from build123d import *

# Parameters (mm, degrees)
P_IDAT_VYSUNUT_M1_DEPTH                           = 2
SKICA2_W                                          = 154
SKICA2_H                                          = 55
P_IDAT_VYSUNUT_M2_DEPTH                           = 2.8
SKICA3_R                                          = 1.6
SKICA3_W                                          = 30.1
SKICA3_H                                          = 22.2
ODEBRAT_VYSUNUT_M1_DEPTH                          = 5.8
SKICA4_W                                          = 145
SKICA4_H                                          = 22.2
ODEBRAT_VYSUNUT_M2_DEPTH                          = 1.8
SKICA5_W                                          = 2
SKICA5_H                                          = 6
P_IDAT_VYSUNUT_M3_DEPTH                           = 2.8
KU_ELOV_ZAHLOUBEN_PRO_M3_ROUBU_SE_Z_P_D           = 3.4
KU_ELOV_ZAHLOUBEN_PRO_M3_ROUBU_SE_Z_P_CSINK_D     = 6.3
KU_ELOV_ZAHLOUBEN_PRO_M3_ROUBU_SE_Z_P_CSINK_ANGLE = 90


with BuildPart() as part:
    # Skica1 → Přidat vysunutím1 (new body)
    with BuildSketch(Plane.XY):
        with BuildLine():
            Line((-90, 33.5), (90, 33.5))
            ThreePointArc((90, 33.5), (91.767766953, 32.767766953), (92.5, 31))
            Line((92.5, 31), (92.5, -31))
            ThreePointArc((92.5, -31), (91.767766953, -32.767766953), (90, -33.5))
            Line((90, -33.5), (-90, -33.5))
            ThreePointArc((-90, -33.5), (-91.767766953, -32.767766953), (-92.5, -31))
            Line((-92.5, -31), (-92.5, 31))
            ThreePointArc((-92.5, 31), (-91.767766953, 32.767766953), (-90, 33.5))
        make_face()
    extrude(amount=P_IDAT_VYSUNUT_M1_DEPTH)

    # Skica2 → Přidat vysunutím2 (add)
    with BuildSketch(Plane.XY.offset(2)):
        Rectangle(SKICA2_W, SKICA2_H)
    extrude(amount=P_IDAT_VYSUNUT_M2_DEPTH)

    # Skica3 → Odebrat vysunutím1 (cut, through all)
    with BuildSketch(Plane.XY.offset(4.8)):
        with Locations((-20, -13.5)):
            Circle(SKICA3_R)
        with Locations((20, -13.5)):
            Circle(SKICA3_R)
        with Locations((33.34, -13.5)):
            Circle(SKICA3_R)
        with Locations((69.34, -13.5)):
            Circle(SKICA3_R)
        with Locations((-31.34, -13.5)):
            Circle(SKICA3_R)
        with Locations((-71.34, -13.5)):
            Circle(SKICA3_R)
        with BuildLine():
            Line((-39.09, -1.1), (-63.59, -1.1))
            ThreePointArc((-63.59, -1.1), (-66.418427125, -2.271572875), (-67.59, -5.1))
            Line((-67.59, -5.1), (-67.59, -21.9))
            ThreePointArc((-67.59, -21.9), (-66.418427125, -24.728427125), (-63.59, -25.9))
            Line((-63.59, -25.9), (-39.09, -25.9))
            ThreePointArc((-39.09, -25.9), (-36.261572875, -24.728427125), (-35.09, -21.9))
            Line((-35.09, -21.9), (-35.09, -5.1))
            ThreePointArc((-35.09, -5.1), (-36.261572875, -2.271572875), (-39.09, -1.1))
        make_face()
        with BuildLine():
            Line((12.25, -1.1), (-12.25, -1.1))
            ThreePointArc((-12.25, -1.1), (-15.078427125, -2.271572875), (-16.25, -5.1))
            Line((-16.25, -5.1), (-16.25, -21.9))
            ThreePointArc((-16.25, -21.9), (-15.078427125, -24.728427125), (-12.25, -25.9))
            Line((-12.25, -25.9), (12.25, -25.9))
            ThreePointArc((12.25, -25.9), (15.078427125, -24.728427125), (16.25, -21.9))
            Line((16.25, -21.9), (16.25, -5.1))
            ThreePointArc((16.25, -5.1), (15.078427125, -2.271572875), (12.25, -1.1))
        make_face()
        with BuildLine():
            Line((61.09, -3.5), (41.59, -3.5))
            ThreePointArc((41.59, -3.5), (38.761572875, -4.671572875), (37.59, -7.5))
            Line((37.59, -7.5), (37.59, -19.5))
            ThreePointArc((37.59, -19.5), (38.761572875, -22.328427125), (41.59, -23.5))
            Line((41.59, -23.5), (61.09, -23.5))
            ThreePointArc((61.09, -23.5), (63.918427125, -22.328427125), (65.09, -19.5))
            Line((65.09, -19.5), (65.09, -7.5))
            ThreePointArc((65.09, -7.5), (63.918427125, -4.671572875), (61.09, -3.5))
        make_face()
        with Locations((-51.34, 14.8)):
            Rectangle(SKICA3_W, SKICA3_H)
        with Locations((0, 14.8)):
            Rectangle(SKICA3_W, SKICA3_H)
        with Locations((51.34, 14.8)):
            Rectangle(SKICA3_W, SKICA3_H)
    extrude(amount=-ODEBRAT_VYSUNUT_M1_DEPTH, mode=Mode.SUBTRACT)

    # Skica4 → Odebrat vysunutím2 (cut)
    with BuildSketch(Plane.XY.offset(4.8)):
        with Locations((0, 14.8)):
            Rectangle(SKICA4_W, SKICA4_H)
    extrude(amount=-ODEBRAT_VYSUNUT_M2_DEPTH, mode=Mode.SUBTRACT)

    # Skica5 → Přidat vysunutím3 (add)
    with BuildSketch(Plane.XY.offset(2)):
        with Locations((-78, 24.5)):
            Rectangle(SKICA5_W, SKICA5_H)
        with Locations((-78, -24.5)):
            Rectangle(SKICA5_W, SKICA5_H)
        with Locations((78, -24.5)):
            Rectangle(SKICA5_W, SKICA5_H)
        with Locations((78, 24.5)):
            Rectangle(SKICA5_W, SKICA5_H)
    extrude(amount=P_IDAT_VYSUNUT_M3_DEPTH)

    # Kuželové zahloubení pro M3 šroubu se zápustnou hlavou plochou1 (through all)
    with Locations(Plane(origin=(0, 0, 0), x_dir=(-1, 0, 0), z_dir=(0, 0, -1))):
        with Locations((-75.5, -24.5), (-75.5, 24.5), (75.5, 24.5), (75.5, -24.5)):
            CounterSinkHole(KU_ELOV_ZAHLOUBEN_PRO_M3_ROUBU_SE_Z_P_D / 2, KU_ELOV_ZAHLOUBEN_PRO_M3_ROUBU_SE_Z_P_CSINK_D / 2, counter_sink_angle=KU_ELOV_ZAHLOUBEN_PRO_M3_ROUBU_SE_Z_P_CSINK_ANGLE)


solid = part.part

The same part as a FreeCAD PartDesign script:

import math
import FreeCAD as App
import Part
import Sketcher
from FreeCAD import Vector


def add_polygon(sketch, points):
    """Adds a closed chain of lines whose ends are joined by coincident constraints."""
    first, n = sketch.GeometryCount, len(points)
    for a, b in zip(points, points[1:] + points[:1]):
        sketch.addGeometry(Part.LineSegment(App.Vector(*a, 0), App.Vector(*b, 0)), False)
    for i in range(n):
        sketch.addConstraint(Sketcher.Constraint("Coincident", first + i, 2, first + (i + 1) % n, 1))

doc = App.newDocument("Part")
params = doc.addObject("Spreadsheet::Sheet", "Params")
for row, (alias, value) in enumerate([
    ("sketch1_radius", "2.5 mm"),
    ("sketch1_width", "180 mm"),
    ("sketch1_height", "62 mm"),
    ("pad1_length", "2 mm"),
    ("sketch2_width", "154 mm"),
    ("sketch2_height", "55 mm"),
    ("pad2_length", "2.8 mm"),
    ("sketch3_radius", "4 mm"),
    ("sketch3_diameter", "3.2 mm"),
    ("sketch3_height", "12 mm"),
    ("sketch3_width", "24.5 mm"),
    ("sketch3_width2", "19.5 mm"),
    ("sketch4_width", "145 mm"),
    ("sketch4_height", "22.2 mm"),
    ("pocket2_length", "1.8 mm"),
    ("sketch5_width", "2 mm"),
    ("sketch5_height", "6 mm"),
    ("pad3_length", "2.8 mm"),
    ("sketch6_diameter", "3.4 mm"),
    ("hole_diameter", "3.4 mm"),
    ("hole_csink_diameter", "6.3 mm"),
], start=1):
    params.set(f"A{row}", alias)
    params.set(f"B{row}", "=" + value)
    params.setAlias(f"B{row}", alias)

body = doc.addObject("PartDesign::Body", "Body")

# Sketch on XY plane
sketch1 = body.newObject("Sketcher::SketchObject", "Sketch")
sketch1.AttachmentSupport = (doc.getObject("XY_Plane"), [""])
sketch1.MapMode = "FlatFace"
sketch1.addGeometry(Part.LineSegment(Vector(90, 33.5, 0), Vector(-90, 33.5, 0)), False)
sketch1.addGeometry(Part.ArcOfCircle(Part.Circle(Vector(-90, 31, 0), Vector(0, 0, 1), 2.5), math.radians(90), math.radians(180)), False)
sketch1.addGeometry(Part.LineSegment(Vector(-92.5, 31, 0), Vector(-92.5, -31, 0)), False)
sketch1.addGeometry(Part.ArcOfCircle(Part.Circle(Vector(-90, -31, 0), Vector(0, 0, 1), 2.5), math.radians(180), math.radians(270)), False)
sketch1.addGeometry(Part.LineSegment(Vector(-90, -33.5, 0), Vector(90, -33.5, 0)), False)
sketch1.addGeometry(Part.ArcOfCircle(Part.Circle(Vector(90, -31, 0), Vector(0, 0, 1), 2.5), math.radians(-90), math.radians(0)), False)
sketch1.addGeometry(Part.LineSegment(Vector(92.5, -31, 0), Vector(92.5, 31, 0)), False)
sketch1.addGeometry(Part.ArcOfCircle(Part.Circle(Vector(90, 31, 0), Vector(0, 0, 1), 2.5), math.radians(0), math.radians(90)), False)
sketch1.addConstraint(Sketcher.Constraint("Tangent", 0, 2, 1, 1))
sketch1.addConstraint(Sketcher.Constraint("Tangent", 1, 2, 2, 1))
sketch1.addConstraint(Sketcher.Constraint("Tangent", 2, 2, 3, 1))
sketch1.addConstraint(Sketcher.Constraint("Tangent", 3, 2, 4, 1))
sketch1.addConstraint(Sketcher.Constraint("Tangent", 4, 2, 5, 1))
sketch1.addConstraint(Sketcher.Constraint("Tangent", 5, 2, 6, 1))
sketch1.addConstraint(Sketcher.Constraint("Tangent", 6, 2, 7, 1))
sketch1.addConstraint(Sketcher.Constraint("Tangent", 7, 2, 0, 1))
sketch1.addConstraint(Sketcher.Constraint("Horizontal", 0))
sketch1.addConstraint(Sketcher.Constraint("Vertical", 2))
sketch1.addConstraint(Sketcher.Constraint("Horizontal", 4))
sketch1.addConstraint(Sketcher.Constraint("Vertical", 6))
sketch1.addConstraint(Sketcher.Constraint("Equal", 1, 3))
sketch1.addConstraint(Sketcher.Constraint("Equal", 3, 5))
sketch1.addConstraint(Sketcher.Constraint("Equal", 5, 7))
sketch1.addConstraint(Sketcher.Constraint("Symmetric", 1, 3, 5, 3, -1, 1))
sketch1.addConstraint(Sketcher.Constraint("Radius", 1, 2.5))
sketch1.addConstraint(Sketcher.Constraint("DistanceX", 0, 2, 0, 1, 180.0))
sketch1.addConstraint(Sketcher.Constraint("DistanceY", 2, 2, 2, 1, 62.0))
sketch1.setExpression("Constraints[16]", "Params.sketch1_radius")
sketch1.setExpression("Constraints[17]", "Params.sketch1_width")
sketch1.setExpression("Constraints[18]", "Params.sketch1_height")
pad1 = body.newObject("PartDesign::Pad", "Pad")
pad1.Profile = sketch1
pad1.setExpression("Length", "Params.pad1_length")

# Sketch on XY plane
sketch2 = body.newObject("Sketcher::SketchObject", "Sketch001")
sketch2.AttachmentSupport = (doc.getObject("XY_Plane"), [""])
sketch2.MapMode = "FlatFace"
sketch2.AttachmentOffset = App.Placement(Vector(0, 0, 2), App.Rotation())
add_polygon(sketch2, [(-77, 28), (-77, -28), (77, -28), (77, 28)])  # lines 0-3
sketch2.addConstraint(Sketcher.Constraint("Vertical", 0))
sketch2.addConstraint(Sketcher.Constraint("Horizontal", 1))
sketch2.addConstraint(Sketcher.Constraint("Vertical", 2))
sketch2.addConstraint(Sketcher.Constraint("Horizontal", 3))
sketch2.addConstraint(Sketcher.Constraint("Symmetric", 0, 2, 2, 2, -1, 1))
sketch2.addConstraint(Sketcher.Constraint("DistanceX", 1, 1, 1, 2, 154.0))
sketch2.addConstraint(Sketcher.Constraint("DistanceY", 0, 2, 0, 1, 55.0))
sketch2.setExpression("Constraints[9]", "Params.sketch2_width")
sketch2.setExpression("Constraints[10]", "Params.sketch2_height")
pad2 = body.newObject("PartDesign::Pad", "Pad001")
pad2.Profile = sketch2
pad2.setExpression("Length", "Params.pad2_length")

# Sketch on XY plane
sketch3 = body.newObject("Sketcher::SketchObject", "Sketch002")
sketch3.AttachmentSupport = (doc.getObject("XY_Plane"), [""])
sketch3.MapMode = "FlatFace"
sketch3.AttachmentOffset = App.Placement(Vector(0, 0, 4.8), App.Rotation())
sketch3.addGeometry(Part.Circle(Vector(-20, -13.5, 0), Vector(0, 0, 1), 1.6), False)  # 0
sketch3.addGeometry(Part.Circle(Vector(20, -13.5, 0), Vector(0, 0, 1), 1.6), False)  # 1
sketch3.addGeometry(Part.Circle(Vector(33.3, -13.5, 0), Vector(0, 0, 1), 1.6), False)  # 2
sketch3.addGeometry(Part.Circle(Vector(69.3, -13.5, 0), Vector(0, 0, 1), 1.6), False)  # 3
sketch3.addGeometry(Part.Circle(Vector(-31.3, -13.5, 0), Vector(0, 0, 1), 1.6), False)  # 4
sketch3.addGeometry(Part.Circle(Vector(-71.3, -13.5, 0), Vector(0, 0, 1), 1.6), False)  # 5
sketch3.addGeometry(Part.LineSegment(Vector(-39.1, -1.1, 0), Vector(-63.6, -1.1, 0)), False)  # 6
sketch3.addGeometry(Part.ArcOfCircle(Part.Circle(Vector(-63.6, -5.1, 0), Vector(0, 0, 1), 4), math.radians(90), math.radians(180)), False)  # 7
sketch3.addGeometry(Part.LineSegment(Vector(-67.6, -5.1, 0), Vector(-67.6, -21.9, 0)), False)  # 8
sketch3.addGeometry(Part.ArcOfCircle(Part.Circle(Vector(-63.6, -21.9, 0), Vector(0, 0, 1), 4), math.radians(180), math.radians(270)), False)  # 9
sketch3.addGeometry(Part.LineSegment(Vector(-63.6, -25.9, 0), Vector(-39.1, -25.9, 0)), False)  # 10
sketch3.addGeometry(Part.ArcOfCircle(Part.Circle(Vector(-39.1, -21.9, 0), Vector(0, 0, 1), 4), math.radians(-90), math.radians(0)), False)  # 11
sketch3.addGeometry(Part.LineSegment(Vector(-35.1, -21.9, 0), Vector(-35.1, -5.1, 0)), False)  # 12
sketch3.addGeometry(Part.ArcOfCircle(Part.Circle(Vector(-39.1, -5.1, 0), Vector(0, 0, 1), 4), math.radians(0), math.radians(90)), False)  # 13
sketch3.addGeometry(Part.LineSegment(Vector(12.2, -1.1, 0), Vector(-12.2, -1.1, 0)), False)  # 14
sketch3.addGeometry(Part.ArcOfCircle(Part.Circle(Vector(-12.3, -5.1, 0), Vector(0, 0, 1), 4), math.radians(90), math.radians(180)), False)  # 15
sketch3.addGeometry(Part.LineSegment(Vector(-16.2, -5.1, 0), Vector(-16.2, -21.9, 0)), False)  # 16
sketch3.addGeometry(Part.ArcOfCircle(Part.Circle(Vector(-12.3, -21.9, 0), Vector(0, 0, 1), 4), math.radians(180), math.radians(270)), False)  # 17
sketch3.addGeometry(Part.LineSegment(Vector(-12.2, -25.9, 0), Vector(12.2, -25.9, 0)), False)  # 18
sketch3.addGeometry(Part.ArcOfCircle(Part.Circle(Vector(12.3, -21.9, 0), Vector(0, 0, 1), 4), math.radians(-90), math.radians(0)), False)  # 19
sketch3.addGeometry(Part.LineSegment(Vector(16.2, -21.9, 0), Vector(16.2, -5.1, 0)), False)  # 20
sketch3.addGeometry(Part.ArcOfCircle(Part.Circle(Vector(12.3, -5.1, 0), Vector(0, 0, 1), 4), math.radians(0), math.radians(90)), False)  # 21
sketch3.addGeometry(Part.LineSegment(Vector(61.1, -3.5, 0), Vector(41.6, -3.5, 0)), False)  # 22
sketch3.addGeometry(Part.ArcOfCircle(Part.Circle(Vector(41.6, -7.5, 0), Vector(0, 0, 1), 4), math.radians(90), math.radians(180)), False)  # 23
sketch3.addGeometry(Part.LineSegment(Vector(37.6, -7.5, 0), Vector(37.6, -19.5, 0)), False)  # 24
sketch3.addGeometry(Part.ArcOfCircle(Part.Circle(Vector(41.6, -19.5, 0), Vector(0, 0, 1), 4), math.radians(180), math.radians(270)), False)  # 25
sketch3.addGeometry(Part.LineSegment(Vector(41.6, -23.5, 0), Vector(61.1, -23.5, 0)), False)  # 26
sketch3.addGeometry(Part.ArcOfCircle(Part.Circle(Vector(61.1, -19.5, 0), Vector(0, 0, 1), 4), math.radians(-90), math.radians(0)), False)  # 27
sketch3.addGeometry(Part.LineSegment(Vector(65.1, -19.5, 0), Vector(65.1, -7.5, 0)), False)  # 28
sketch3.addGeometry(Part.ArcOfCircle(Part.Circle(Vector(61.1, -7.5, 0), Vector(0, 0, 1), 4), math.radians(0), math.radians(90)), False)  # 29
add_polygon(sketch3, [(-66.4, 25.9), (-66.4, 3.7), (-36.3, 3.7), (-36.3, 25.9)])  # lines 30-33
add_polygon(sketch3, [(-15.1, 25.9), (-15.1, 3.7), (15.1, 3.7), (15.1, 25.9)])  # lines 34-37
add_polygon(sketch3, [(36.3, 25.9), (36.3, 3.7), (66.4, 3.7), (66.4, 25.9)])  # lines 38-41
sketch3.addConstraint(Sketcher.Constraint("Tangent", 6, 2, 7, 1))
sketch3.addConstraint(Sketcher.Constraint("Tangent", 7, 2, 8, 1))
sketch3.addConstraint(Sketcher.Constraint("Tangent", 8, 2, 9, 1))
sketch3.addConstraint(Sketcher.Constraint("Tangent", 9, 2, 10, 1))
sketch3.addConstraint(Sketcher.Constraint("Tangent", 10, 2, 11, 1))
sketch3.addConstraint(Sketcher.Constraint("Tangent", 11, 2, 12, 1))
sketch3.addConstraint(Sketcher.Constraint("Tangent", 12, 2, 13, 1))
sketch3.addConstraint(Sketcher.Constraint("Tangent", 13, 2, 6, 1))
sketch3.addConstraint(Sketcher.Constraint("Tangent", 14, 2, 15, 1))
sketch3.addConstraint(Sketcher.Constraint("Tangent", 15, 2, 16, 1))
sketch3.addConstraint(Sketcher.Constraint("Tangent", 16, 2, 17, 1))
sketch3.addConstraint(Sketcher.Constraint("Tangent", 17, 2, 18, 1))
sketch3.addConstraint(Sketcher.Constraint("Tangent", 18, 2, 19, 1))
sketch3.addConstraint(Sketcher.Constraint("Tangent", 19, 2, 20, 1))
sketch3.addConstraint(Sketcher.Constraint("Tangent", 20, 2, 21, 1))
sketch3.addConstraint(Sketcher.Constraint("Tangent", 21, 2, 14, 1))
sketch3.addConstraint(Sketcher.Constraint("Tangent", 22, 2, 23, 1))
sketch3.addConstraint(Sketcher.Constraint("Tangent", 23, 2, 24, 1))
sketch3.addConstraint(Sketcher.Constraint("Tangent", 24, 2, 25, 1))
sketch3.addConstraint(Sketcher.Constraint("Tangent", 25, 2, 26, 1))
sketch3.addConstraint(Sketcher.Constraint("Tangent", 26, 2, 27, 1))
sketch3.addConstraint(Sketcher.Constraint("Tangent", 27, 2, 28, 1))
sketch3.addConstraint(Sketcher.Constraint("Tangent", 28, 2, 29, 1))
sketch3.addConstraint(Sketcher.Constraint("Tangent", 29, 2, 22, 1))
sketch3.addConstraint(Sketcher.Constraint("Horizontal", 6))
sketch3.addConstraint(Sketcher.Constraint("Vertical", 8))
sketch3.addConstraint(Sketcher.Constraint("Horizontal", 10))
sketch3.addConstraint(Sketcher.Constraint("Vertical", 12))
sketch3.addConstraint(Sketcher.Constraint("Horizontal", 14))
sketch3.addConstraint(Sketcher.Constraint("Vertical", 16))
sketch3.addConstraint(Sketcher.Constraint("Horizontal", 18))
sketch3.addConstraint(Sketcher.Constraint("Vertical", 20))
sketch3.addConstraint(Sketcher.Constraint("Horizontal", 22))
sketch3.addConstraint(Sketcher.Constraint("Vertical", 24))
sketch3.addConstraint(Sketcher.Constraint("Horizontal", 26))
sketch3.addConstraint(Sketcher.Constraint("Vertical", 28))
sketch3.addConstraint(Sketcher.Constraint("Vertical", 30))
sketch3.addConstraint(Sketcher.Constraint("Horizontal", 31))
sketch3.addConstraint(Sketcher.Constraint("Vertical", 32))
sketch3.addConstraint(Sketcher.Constraint("Horizontal", 33))
sketch3.addConstraint(Sketcher.Constraint("Vertical", 34))
sketch3.addConstraint(Sketcher.Constraint("Horizontal", 35))
sketch3.addConstraint(Sketcher.Constraint("Vertical", 36))
sketch3.addConstraint(Sketcher.Constraint("Horizontal", 37))
sketch3.addConstraint(Sketcher.Constraint("Vertical", 38))
sketch3.addConstraint(Sketcher.Constraint("Horizontal", 39))
sketch3.addConstraint(Sketcher.Constraint("Vertical", 40))
sketch3.addConstraint(Sketcher.Constraint("Horizontal", 41))
sketch3.addConstraint(Sketcher.Constraint("Equal", 0, 1))
sketch3.addConstraint(Sketcher.Constraint("Equal", 1, 2))
sketch3.addConstraint(Sketcher.Constraint("Equal", 2, 3))
sketch3.addConstraint(Sketcher.Constraint("Equal", 3, 4))
sketch3.addConstraint(Sketcher.Constraint("Equal", 4, 5))
sketch3.addConstraint(Sketcher.Constraint("Equal", 7, 9))
sketch3.addConstraint(Sketcher.Constraint("Equal", 9, 11))
sketch3.addConstraint(Sketcher.Constraint("Equal", 11, 13))
sketch3.addConstraint(Sketcher.Constraint("Equal", 13, 15))
sketch3.addConstraint(Sketcher.Constraint("Equal", 15, 17))
sketch3.addConstraint(Sketcher.Constraint("Equal", 17, 19))
sketch3.addConstraint(Sketcher.Constraint("Equal", 19, 21))
sketch3.addConstraint(Sketcher.Constraint("Equal", 21, 23))
sketch3.addConstraint(Sketcher.Constraint("Equal", 23, 25))
sketch3.addConstraint(Sketcher.Constraint("Equal", 25, 27))
sketch3.addConstraint(Sketcher.Constraint("Equal", 27, 29))
sketch3.addConstraint(Sketcher.Constraint("Symmetric", 0, 3, 1, 3, -2))
sketch3.addConstraint(Sketcher.Constraint("Symmetric", 31, 2, 38, 2, -2))
sketch3.addConstraint(Sketcher.Constraint("Symmetric", 33, 2, 40, 2, -2))
sketch3.addConstraint(Sketcher.Constraint("Horizontal", 1, 3, 2, 3))
sketch3.addConstraint(Sketcher.Constraint("Horizontal", 2, 3, 3, 3))
sketch3.addConstraint(Sketcher.Constraint("Horizontal", 3, 3, 4, 3))
sketch3.addConstraint(Sketcher.Constraint("Horizontal", 4, 3, 5, 3))
sketch3.addConstraint(Sketcher.Constraint("Horizontal", 13, 3, 15, 3))
sketch3.addConstraint(Sketcher.Constraint("Horizontal", 11, 3, 17, 3))
sketch3.addConstraint(Sketcher.Constraint("Horizontal", 31, 2, 34, 2))
sketch3.addConstraint(Sketcher.Constraint("Horizontal", 33, 2, 36, 2))
sketch3.addConstraint(Sketcher.Constraint("Equal", 10, 14))
sketch3.addConstraint(Sketcher.Constraint("Equal", 33, 35))
sketch3.addConstraint(Sketcher.Constraint("Radius", 7, 4.0))
sketch3.addConstraint(Sketcher.Constraint("Diameter", 0, 3.2))
sketch3.addConstraint(Sketcher.Constraint("DistanceY", 24, 2, 24, 1, 12.0))
sketch3.addConstraint(Sketcher.Constraint("DistanceX", 6, 2, 6, 1, 24.5))
sketch3.addConstraint(Sketcher.Constraint("DistanceX", 22, 2, 22, 1, 19.5))
sketch3.addConstraint(Sketcher.Constraint("DistanceX", 31, 1, 31, 2, 30.1))
sketch3.addConstraint(Sketcher.Constraint("DistanceY", 8, 2, 8, 1, 16.8))
sketch3.addConstraint(Sketcher.Constraint("DistanceY", 30, 2, 30, 1, 22.2))
sketch3.addConstraint(Sketcher.Constraint("DistanceX", 0, 3, -1, 1, 20.0))
sketch3.addConstraint(Sketcher.Constraint("DistanceX", 2, 3, 3, 3, 36.0))
sketch3.addConstraint(Sketcher.Constraint("DistanceX", 5, 3, 4, 3, 40.0))
sketch3.addConstraint(Sketcher.Constraint("DistanceY", 2, 3, 23, 3, 6.0))
sketch3.addConstraint(Sketcher.Constraint("DistanceY", 13, 2, 32, 2, 27.0))
sketch3.addConstraint(Sketcher.Constraint("DistanceY", 0, 3, -1, 1, 13.5))
sketch3.addConstraint(Sketcher.Constraint("DistanceY", 7, 3, -1, 1, 5.1))
sketch3.addConstraint(Sketcher.Constraint("DistanceX", 30, 2, 6, 2, 2.8))
sketch3.addConstraint(Sketcher.Constraint("DistanceX", 34, 2, 14, 2, 2.8))
sketch3.addConstraint(Sketcher.Constraint("DistanceX", 38, 2, 22, 2, 5.3))
sketch3.addConstraint(Sketcher.Constraint("DistanceX", -1, 1, 2, 3, 33.34))
sketch3.addConstraint(Sketcher.Constraint("DistanceX", 4, 3, -1, 1, 31.34))
sketch3.addConstraint(Sketcher.Constraint("DistanceX", 7, 3, -1, 1, 63.59))
sketch3.addConstraint(Sketcher.Constraint("DistanceX", 15, 3, -1, 1, 12.25))
sketch3.setExpression("Constraints[89]", "Params.sketch3_radius")
sketch3.setExpression("Constraints[90]", "Params.sketch3_diameter")
sketch3.setExpression("Constraints[91]", "Params.sketch3_height")
sketch3.setExpression("Constraints[92]", "Params.sketch3_width")
sketch3.setExpression("Constraints[93]", "Params.sketch3_width2")
pocket1 = body.newObject("PartDesign::Pocket", "Pocket")
pocket1.Profile = sketch3
pocket1.Type = "ThroughAll"

# Sketch on XY plane
sketch4 = body.newObject("Sketcher::SketchObject", "Sketch003")
sketch4.AttachmentSupport = (doc.getObject("XY_Plane"), [""])
sketch4.MapMode = "FlatFace"
sketch4.AttachmentOffset = App.Placement(Vector(0, 0, 4.8), App.Rotation())
add_polygon(sketch4, [(-72, 26), (-72, 4), (72, 4), (72, 26)])  # lines 0-3
sketch4.addConstraint(Sketcher.Constraint("Vertical", 0))
sketch4.addConstraint(Sketcher.Constraint("Horizontal", 1))
sketch4.addConstraint(Sketcher.Constraint("Vertical", 2))
sketch4.addConstraint(Sketcher.Constraint("Horizontal", 3))
sketch4.addConstraint(Sketcher.Constraint("DistanceX", 1, 1, 1, 2, 145.0))
sketch4.addConstraint(Sketcher.Constraint("DistanceY", 0, 2, 0, 1, 22.2))
sketch4.addConstraint(Sketcher.Constraint("DistanceX", 0, 2, -1, 1, 72.5))
sketch4.addConstraint(Sketcher.Constraint("DistanceY", -1, 1, 0, 2, 3.7))
sketch4.setExpression("Constraints[8]", "Params.sketch4_width")
sketch4.setExpression("Constraints[9]", "Params.sketch4_height")
pocket2 = body.newObject("PartDesign::Pocket", "Pocket001")
pocket2.Profile = sketch4
pocket2.setExpression("Length", "Params.pocket2_length")

# Sketch on XY plane
sketch5 = body.newObject("Sketcher::SketchObject", "Sketch004")
sketch5.AttachmentSupport = (doc.getObject("XY_Plane"), [""])
sketch5.MapMode = "FlatFace"
sketch5.AttachmentOffset = App.Placement(Vector(0, 0, 2), App.Rotation())
add_polygon(sketch5, [(-79, 27.5), (-79, 21.5), (-77, 21.5), (-77, 27.5)])  # lines 0-3
add_polygon(sketch5, [(-79, -21.5), (-79, -27.5), (-77, -27.5), (-77, -21.5)])  # lines 4-7
add_polygon(sketch5, [(77, -21.5), (77, -27.5), (79, -27.5), (79, -21.5)])  # lines 8-11
add_polygon(sketch5, [(77, 27.5), (77, 21.5), (79, 21.5), (79, 27.5)])  # lines 12-15
sketch5.addConstraint(Sketcher.Constraint("Vertical", 0))
sketch5.addConstraint(Sketcher.Constraint("Horizontal", 1))
sketch5.addConstraint(Sketcher.Constraint("Vertical", 2))
sketch5.addConstraint(Sketcher.Constraint("Horizontal", 3))
sketch5.addConstraint(Sketcher.Constraint("Vertical", 4))
sketch5.addConstraint(Sketcher.Constraint("Horizontal", 5))
sketch5.addConstraint(Sketcher.Constraint("Vertical", 6))
sketch5.addConstraint(Sketcher.Constraint("Horizontal", 7))
sketch5.addConstraint(Sketcher.Constraint("Vertical", 8))
sketch5.addConstraint(Sketcher.Constraint("Horizontal", 9))
sketch5.addConstraint(Sketcher.Constraint("Vertical", 10))
sketch5.addConstraint(Sketcher.Constraint("Horizontal", 11))
sketch5.addConstraint(Sketcher.Constraint("Vertical", 12))
sketch5.addConstraint(Sketcher.Constraint("Horizontal", 13))
sketch5.addConstraint(Sketcher.Constraint("Vertical", 14))
sketch5.addConstraint(Sketcher.Constraint("Horizontal", 15))
sketch5.addConstraint(Sketcher.Constraint("Symmetric", 2, 2, 8, 2, -1, 1))
sketch5.addConstraint(Sketcher.Constraint("Symmetric", 0, 2, 10, 2, -1, 1))
sketch5.addConstraint(Sketcher.Constraint("Symmetric", 6, 2, 12, 2, -1, 1))
sketch5.addConstraint(Sketcher.Constraint("Symmetric", 4, 2, 14, 2, -1, 1))
sketch5.addConstraint(Sketcher.Constraint("Symmetric", 5, 2, 8, 2, -2))
sketch5.addConstraint(Sketcher.Constraint("Symmetric", 7, 2, 10, 2, -2))
sketch5.addConstraint(Sketcher.Constraint("DistanceX", 1, 1, 1, 2, 2.0))
sketch5.addConstraint(Sketcher.Constraint("DistanceY", 0, 2, 0, 1, 6.0))
sketch5.addConstraint(Sketcher.Constraint("DistanceX", 0, 2, -1, 1, 79.0))
sketch5.addConstraint(Sketcher.Constraint("DistanceY", 4, 2, 0, 2, 49.0))
sketch5.setExpression("Constraints[38]", "Params.sketch5_width")
sketch5.setExpression("Constraints[39]", "Params.sketch5_height")
pad3 = body.newObject("PartDesign::Pad", "Pad002")
pad3.Profile = sketch5
pad3.setExpression("Length", "Params.pad3_length")

# Sketch on XY plane
sketch6 = body.newObject("Sketcher::SketchObject", "Sketch005")
sketch6.AttachmentSupport = (doc.getObject("XY_Plane"), [""])
sketch6.MapMode = "FlatFace"
sketch6.addGeometry(Part.Circle(Vector(75.5, -24.5, 0), Vector(0, 0, 1), 1.7), False)
sketch6.addGeometry(Part.Circle(Vector(75.5, 24.5, 0), Vector(0, 0, 1), 1.7), False)
sketch6.addGeometry(Part.Circle(Vector(-75.5, 24.5, 0), Vector(0, 0, 1), 1.7), False)
sketch6.addGeometry(Part.Circle(Vector(-75.5, -24.5, 0), Vector(0, 0, 1), 1.7), False)
sketch6.addConstraint(Sketcher.Constraint("Equal", 0, 1))
sketch6.addConstraint(Sketcher.Constraint("Equal", 1, 2))
sketch6.addConstraint(Sketcher.Constraint("Equal", 2, 3))
sketch6.addConstraint(Sketcher.Constraint("Symmetric", 0, 3, 2, 3, -1, 1))
sketch6.addConstraint(Sketcher.Constraint("Symmetric", 1, 3, 3, 3, -1, 1))
sketch6.addConstraint(Sketcher.Constraint("Symmetric", 1, 3, 2, 3, -2))
sketch6.addConstraint(Sketcher.Constraint("Diameter", 0, 3.4))
sketch6.addConstraint(Sketcher.Constraint("DistanceY", 0, 3, 1, 3, 49.0))
sketch6.addConstraint(Sketcher.Constraint("DistanceX", 2, 3, 1, 3, 151.0))
sketch6.setExpression("Constraints[6]", "Params.sketch6_diameter")
doc.recompute()
hole = body.newObject("PartDesign::Hole", "Hole")
hole.Profile = sketch6
hole.ThreadType = "None"
hole.setExpression("Diameter", "Params.hole_diameter")
hole.DepthType = "ThroughAll"
hole.HoleCutType = "Countersink"
hole.setExpression("HoleCutDiameter", "Params.hole_csink_diameter")
hole.HoleCutCountersinkAngle = 90
hole.Reversed = True

doc.recompute()
